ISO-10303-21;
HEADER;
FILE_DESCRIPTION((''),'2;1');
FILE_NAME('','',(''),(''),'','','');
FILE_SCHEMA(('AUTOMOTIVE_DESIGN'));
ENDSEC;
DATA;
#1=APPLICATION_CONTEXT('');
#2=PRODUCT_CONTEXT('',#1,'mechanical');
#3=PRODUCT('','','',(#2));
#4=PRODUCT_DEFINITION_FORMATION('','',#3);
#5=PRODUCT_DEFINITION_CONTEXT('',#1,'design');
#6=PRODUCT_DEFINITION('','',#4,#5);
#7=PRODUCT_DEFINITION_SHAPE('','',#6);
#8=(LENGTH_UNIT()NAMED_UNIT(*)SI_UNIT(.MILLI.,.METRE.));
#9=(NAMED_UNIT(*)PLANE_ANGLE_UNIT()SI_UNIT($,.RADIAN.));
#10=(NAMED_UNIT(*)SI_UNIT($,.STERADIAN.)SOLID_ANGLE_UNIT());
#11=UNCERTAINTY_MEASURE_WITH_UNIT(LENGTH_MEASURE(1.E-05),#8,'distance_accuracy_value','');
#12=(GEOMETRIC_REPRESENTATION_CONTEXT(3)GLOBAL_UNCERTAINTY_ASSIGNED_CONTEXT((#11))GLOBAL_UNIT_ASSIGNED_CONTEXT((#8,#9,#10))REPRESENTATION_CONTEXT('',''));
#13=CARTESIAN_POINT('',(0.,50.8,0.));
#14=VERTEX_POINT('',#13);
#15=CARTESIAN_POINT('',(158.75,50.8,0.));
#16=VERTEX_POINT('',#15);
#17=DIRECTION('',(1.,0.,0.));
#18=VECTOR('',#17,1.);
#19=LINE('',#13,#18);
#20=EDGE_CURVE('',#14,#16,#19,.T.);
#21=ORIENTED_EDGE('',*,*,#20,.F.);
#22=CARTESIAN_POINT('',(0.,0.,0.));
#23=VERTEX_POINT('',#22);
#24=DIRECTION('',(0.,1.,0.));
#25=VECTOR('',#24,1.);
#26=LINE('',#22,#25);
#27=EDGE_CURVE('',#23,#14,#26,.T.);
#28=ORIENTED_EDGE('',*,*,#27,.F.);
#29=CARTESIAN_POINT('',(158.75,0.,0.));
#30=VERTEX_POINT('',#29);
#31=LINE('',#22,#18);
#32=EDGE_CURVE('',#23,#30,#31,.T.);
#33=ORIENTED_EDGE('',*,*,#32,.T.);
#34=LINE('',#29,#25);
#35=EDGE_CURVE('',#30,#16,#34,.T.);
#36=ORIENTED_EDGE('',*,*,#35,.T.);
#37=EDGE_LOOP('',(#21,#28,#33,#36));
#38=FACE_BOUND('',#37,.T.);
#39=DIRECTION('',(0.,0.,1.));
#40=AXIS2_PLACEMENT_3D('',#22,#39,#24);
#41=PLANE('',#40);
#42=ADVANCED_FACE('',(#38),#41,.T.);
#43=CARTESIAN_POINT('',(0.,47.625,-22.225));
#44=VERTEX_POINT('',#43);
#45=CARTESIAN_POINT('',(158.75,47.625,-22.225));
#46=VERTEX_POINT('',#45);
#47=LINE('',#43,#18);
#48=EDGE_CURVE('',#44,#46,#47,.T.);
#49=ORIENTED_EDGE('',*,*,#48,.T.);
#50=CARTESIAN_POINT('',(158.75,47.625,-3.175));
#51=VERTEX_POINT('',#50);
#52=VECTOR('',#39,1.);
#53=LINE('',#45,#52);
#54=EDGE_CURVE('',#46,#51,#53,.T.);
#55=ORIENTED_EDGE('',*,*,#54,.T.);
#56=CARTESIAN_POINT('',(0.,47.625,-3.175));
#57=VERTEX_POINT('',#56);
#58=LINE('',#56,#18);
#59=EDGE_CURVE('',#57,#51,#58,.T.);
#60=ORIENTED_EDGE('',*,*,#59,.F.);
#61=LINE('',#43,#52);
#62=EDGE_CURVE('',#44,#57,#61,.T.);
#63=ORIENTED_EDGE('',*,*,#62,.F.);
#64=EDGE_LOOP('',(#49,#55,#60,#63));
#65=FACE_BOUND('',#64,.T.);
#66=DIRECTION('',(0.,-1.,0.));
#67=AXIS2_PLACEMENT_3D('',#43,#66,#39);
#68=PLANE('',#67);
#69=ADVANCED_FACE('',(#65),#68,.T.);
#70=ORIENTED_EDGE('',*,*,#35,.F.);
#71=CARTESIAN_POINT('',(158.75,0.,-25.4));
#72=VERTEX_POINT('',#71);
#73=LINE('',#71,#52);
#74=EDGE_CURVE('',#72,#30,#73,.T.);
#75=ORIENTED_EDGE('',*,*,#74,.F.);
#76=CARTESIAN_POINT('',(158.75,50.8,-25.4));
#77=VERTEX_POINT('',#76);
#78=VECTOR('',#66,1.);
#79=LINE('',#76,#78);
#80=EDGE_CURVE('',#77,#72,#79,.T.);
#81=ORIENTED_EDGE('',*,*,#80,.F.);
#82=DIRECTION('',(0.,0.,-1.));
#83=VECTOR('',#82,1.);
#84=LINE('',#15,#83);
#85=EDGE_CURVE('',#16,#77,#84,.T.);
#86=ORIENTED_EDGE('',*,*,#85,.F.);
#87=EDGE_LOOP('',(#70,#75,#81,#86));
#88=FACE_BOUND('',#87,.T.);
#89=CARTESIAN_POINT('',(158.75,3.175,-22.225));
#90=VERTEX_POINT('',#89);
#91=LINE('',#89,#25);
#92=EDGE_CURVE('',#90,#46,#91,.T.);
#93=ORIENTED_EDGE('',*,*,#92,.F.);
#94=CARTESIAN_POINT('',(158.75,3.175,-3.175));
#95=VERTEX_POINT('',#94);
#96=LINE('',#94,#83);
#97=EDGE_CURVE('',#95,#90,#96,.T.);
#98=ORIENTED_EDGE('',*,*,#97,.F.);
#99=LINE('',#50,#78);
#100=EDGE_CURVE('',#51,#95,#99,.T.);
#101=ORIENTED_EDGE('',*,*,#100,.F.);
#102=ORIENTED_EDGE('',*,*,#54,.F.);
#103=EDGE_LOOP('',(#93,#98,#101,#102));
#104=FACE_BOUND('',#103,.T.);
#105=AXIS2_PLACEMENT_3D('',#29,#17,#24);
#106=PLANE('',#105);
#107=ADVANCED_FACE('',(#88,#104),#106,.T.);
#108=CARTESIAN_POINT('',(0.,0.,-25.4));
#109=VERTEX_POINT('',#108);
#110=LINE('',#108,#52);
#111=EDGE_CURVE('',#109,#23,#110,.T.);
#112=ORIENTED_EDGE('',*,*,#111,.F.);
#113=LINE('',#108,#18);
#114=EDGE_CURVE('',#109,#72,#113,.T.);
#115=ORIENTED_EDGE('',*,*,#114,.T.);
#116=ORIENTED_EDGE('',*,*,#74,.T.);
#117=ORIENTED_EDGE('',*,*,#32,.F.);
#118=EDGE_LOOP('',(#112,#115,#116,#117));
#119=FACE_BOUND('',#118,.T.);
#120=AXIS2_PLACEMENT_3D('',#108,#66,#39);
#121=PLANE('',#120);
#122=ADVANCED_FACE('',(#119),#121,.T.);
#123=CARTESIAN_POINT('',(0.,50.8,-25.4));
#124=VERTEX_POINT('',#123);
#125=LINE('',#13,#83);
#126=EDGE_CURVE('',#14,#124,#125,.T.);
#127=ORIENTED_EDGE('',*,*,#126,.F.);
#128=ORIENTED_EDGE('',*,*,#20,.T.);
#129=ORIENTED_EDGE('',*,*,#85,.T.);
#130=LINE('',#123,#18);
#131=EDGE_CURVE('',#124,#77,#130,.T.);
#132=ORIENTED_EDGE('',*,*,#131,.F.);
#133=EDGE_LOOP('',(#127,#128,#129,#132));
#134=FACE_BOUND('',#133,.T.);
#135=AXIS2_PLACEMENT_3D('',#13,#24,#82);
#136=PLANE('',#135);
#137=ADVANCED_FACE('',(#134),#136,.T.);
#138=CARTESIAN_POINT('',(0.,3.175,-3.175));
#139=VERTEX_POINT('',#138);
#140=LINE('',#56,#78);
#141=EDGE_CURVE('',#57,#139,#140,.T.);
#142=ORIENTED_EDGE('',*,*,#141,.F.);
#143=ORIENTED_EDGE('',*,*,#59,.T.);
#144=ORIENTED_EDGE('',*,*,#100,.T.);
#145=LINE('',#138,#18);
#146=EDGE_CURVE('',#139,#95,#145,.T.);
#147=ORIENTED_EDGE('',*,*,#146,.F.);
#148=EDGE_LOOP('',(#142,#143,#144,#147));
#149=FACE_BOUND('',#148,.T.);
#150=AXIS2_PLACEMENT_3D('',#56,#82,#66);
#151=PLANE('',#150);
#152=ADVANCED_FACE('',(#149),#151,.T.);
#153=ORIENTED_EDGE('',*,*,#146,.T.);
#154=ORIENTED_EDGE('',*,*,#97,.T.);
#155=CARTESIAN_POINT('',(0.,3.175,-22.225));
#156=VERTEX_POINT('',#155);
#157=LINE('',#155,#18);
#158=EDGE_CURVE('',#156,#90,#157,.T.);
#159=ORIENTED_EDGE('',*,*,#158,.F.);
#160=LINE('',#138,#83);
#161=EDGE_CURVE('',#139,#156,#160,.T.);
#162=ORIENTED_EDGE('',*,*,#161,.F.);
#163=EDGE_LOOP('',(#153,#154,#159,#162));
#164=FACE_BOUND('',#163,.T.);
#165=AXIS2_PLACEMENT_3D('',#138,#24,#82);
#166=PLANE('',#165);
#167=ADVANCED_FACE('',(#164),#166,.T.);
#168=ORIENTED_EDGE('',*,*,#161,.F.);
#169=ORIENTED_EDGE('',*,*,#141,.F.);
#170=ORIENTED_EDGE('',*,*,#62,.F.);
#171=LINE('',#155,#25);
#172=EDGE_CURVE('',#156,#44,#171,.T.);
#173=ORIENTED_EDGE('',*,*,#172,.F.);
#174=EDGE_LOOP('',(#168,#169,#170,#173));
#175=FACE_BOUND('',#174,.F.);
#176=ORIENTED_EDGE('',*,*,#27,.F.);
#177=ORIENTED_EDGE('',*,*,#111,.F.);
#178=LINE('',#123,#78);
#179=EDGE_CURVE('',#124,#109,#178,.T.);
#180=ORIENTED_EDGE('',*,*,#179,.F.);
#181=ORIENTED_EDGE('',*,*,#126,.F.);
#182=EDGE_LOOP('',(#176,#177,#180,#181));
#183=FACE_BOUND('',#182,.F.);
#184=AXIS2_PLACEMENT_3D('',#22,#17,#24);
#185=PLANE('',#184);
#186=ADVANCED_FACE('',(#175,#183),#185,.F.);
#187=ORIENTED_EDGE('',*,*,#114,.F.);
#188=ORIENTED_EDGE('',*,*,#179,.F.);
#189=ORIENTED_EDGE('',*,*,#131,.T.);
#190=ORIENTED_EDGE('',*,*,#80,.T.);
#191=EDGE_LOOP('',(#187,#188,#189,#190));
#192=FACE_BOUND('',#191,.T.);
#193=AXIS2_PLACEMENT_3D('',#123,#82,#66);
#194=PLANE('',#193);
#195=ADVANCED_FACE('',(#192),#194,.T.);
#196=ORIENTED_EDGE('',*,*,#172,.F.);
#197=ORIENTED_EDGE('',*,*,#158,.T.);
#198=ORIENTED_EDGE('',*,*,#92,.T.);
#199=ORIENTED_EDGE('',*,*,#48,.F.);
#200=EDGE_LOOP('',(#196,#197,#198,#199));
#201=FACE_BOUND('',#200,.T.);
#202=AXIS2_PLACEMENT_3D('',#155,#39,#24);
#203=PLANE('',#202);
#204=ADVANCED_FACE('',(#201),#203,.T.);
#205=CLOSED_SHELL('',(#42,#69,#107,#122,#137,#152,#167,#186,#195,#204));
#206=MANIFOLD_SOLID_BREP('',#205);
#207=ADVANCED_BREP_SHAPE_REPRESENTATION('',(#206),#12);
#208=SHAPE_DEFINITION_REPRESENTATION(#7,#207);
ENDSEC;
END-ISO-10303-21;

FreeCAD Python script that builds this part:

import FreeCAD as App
import Part
import Sketcher
from FreeCAD import Vector
Q = App.Units.Quantity


def add_polygon(sketch, points):
    """Adds a closed chain of lines whose ends are joined by coincident constraints."""
    first, n = sketch.GeometryCount, len(points)
    for a, b in zip(points, points[1:] + points[:1]):
        sketch.addGeometry(Part.LineSegment(App.Vector(*a, 0), App.Vector(*b, 0)), False)
    for i in range(n):
        sketch.addConstraint(Sketcher.Constraint("Coincident", first + i, 2, first + (i + 1) % n, 1))

doc = App.newDocument("Part")
body = doc.addObject("PartDesign::Body", "Body")

sketch1 = body.newObject("Sketcher::SketchObject", "Sketch")
sketch1.AttachmentSupport = (doc.getObject("YZ_Plane"), [""])
sketch1.MapMode = "FlatFace"
add_polygon(sketch1, [(51, 0), (0, 0), (0, -25), (51, -25)])
add_polygon(sketch1, [(48, -3), (48, -22), (3, -22), (3, -3)])
sketch1.addConstraint([
    Sketcher.Constraint("Horizontal", 0),
    Sketcher.Constraint("Vertical", 1),
    Sketcher.Constraint("Horizontal", 2),
    Sketcher.Constraint("Vertical", 3),
    Sketcher.Constraint("Vertical", 4),
    Sketcher.Constraint("Horizontal", 5),
    Sketcher.Constraint("Vertical", 6),
    Sketcher.Constraint("Horizontal", 7),
    Sketcher.Constraint("Coincident", 0, 2, -1, 1),
    Sketcher.Constraint("DistanceX", 0, 2, 0, 1, Q("2 in")),
    Sketcher.Constraint("DistanceY", 1, 2, 1, 1, Q("1 in")),
    Sketcher.Constraint("DistanceX", -1, 1, 5, 2, Q("0.125 in")),
    Sketcher.Constraint("DistanceY", 6, 2, -1, 1, Q("0.125 in")),
    Sketcher.Constraint("DistanceX", 4, 2, 2, 2, Q("0.125 in")),
    Sketcher.Constraint("DistanceY", 2, 2, 4, 2, Q("0.125 in")),
])
pad1 = body.newObject("PartDesign::Pad", "Pad")
pad1.Profile = sketch1
pad1.Length = Q("6.25 in")

doc.recompute()
